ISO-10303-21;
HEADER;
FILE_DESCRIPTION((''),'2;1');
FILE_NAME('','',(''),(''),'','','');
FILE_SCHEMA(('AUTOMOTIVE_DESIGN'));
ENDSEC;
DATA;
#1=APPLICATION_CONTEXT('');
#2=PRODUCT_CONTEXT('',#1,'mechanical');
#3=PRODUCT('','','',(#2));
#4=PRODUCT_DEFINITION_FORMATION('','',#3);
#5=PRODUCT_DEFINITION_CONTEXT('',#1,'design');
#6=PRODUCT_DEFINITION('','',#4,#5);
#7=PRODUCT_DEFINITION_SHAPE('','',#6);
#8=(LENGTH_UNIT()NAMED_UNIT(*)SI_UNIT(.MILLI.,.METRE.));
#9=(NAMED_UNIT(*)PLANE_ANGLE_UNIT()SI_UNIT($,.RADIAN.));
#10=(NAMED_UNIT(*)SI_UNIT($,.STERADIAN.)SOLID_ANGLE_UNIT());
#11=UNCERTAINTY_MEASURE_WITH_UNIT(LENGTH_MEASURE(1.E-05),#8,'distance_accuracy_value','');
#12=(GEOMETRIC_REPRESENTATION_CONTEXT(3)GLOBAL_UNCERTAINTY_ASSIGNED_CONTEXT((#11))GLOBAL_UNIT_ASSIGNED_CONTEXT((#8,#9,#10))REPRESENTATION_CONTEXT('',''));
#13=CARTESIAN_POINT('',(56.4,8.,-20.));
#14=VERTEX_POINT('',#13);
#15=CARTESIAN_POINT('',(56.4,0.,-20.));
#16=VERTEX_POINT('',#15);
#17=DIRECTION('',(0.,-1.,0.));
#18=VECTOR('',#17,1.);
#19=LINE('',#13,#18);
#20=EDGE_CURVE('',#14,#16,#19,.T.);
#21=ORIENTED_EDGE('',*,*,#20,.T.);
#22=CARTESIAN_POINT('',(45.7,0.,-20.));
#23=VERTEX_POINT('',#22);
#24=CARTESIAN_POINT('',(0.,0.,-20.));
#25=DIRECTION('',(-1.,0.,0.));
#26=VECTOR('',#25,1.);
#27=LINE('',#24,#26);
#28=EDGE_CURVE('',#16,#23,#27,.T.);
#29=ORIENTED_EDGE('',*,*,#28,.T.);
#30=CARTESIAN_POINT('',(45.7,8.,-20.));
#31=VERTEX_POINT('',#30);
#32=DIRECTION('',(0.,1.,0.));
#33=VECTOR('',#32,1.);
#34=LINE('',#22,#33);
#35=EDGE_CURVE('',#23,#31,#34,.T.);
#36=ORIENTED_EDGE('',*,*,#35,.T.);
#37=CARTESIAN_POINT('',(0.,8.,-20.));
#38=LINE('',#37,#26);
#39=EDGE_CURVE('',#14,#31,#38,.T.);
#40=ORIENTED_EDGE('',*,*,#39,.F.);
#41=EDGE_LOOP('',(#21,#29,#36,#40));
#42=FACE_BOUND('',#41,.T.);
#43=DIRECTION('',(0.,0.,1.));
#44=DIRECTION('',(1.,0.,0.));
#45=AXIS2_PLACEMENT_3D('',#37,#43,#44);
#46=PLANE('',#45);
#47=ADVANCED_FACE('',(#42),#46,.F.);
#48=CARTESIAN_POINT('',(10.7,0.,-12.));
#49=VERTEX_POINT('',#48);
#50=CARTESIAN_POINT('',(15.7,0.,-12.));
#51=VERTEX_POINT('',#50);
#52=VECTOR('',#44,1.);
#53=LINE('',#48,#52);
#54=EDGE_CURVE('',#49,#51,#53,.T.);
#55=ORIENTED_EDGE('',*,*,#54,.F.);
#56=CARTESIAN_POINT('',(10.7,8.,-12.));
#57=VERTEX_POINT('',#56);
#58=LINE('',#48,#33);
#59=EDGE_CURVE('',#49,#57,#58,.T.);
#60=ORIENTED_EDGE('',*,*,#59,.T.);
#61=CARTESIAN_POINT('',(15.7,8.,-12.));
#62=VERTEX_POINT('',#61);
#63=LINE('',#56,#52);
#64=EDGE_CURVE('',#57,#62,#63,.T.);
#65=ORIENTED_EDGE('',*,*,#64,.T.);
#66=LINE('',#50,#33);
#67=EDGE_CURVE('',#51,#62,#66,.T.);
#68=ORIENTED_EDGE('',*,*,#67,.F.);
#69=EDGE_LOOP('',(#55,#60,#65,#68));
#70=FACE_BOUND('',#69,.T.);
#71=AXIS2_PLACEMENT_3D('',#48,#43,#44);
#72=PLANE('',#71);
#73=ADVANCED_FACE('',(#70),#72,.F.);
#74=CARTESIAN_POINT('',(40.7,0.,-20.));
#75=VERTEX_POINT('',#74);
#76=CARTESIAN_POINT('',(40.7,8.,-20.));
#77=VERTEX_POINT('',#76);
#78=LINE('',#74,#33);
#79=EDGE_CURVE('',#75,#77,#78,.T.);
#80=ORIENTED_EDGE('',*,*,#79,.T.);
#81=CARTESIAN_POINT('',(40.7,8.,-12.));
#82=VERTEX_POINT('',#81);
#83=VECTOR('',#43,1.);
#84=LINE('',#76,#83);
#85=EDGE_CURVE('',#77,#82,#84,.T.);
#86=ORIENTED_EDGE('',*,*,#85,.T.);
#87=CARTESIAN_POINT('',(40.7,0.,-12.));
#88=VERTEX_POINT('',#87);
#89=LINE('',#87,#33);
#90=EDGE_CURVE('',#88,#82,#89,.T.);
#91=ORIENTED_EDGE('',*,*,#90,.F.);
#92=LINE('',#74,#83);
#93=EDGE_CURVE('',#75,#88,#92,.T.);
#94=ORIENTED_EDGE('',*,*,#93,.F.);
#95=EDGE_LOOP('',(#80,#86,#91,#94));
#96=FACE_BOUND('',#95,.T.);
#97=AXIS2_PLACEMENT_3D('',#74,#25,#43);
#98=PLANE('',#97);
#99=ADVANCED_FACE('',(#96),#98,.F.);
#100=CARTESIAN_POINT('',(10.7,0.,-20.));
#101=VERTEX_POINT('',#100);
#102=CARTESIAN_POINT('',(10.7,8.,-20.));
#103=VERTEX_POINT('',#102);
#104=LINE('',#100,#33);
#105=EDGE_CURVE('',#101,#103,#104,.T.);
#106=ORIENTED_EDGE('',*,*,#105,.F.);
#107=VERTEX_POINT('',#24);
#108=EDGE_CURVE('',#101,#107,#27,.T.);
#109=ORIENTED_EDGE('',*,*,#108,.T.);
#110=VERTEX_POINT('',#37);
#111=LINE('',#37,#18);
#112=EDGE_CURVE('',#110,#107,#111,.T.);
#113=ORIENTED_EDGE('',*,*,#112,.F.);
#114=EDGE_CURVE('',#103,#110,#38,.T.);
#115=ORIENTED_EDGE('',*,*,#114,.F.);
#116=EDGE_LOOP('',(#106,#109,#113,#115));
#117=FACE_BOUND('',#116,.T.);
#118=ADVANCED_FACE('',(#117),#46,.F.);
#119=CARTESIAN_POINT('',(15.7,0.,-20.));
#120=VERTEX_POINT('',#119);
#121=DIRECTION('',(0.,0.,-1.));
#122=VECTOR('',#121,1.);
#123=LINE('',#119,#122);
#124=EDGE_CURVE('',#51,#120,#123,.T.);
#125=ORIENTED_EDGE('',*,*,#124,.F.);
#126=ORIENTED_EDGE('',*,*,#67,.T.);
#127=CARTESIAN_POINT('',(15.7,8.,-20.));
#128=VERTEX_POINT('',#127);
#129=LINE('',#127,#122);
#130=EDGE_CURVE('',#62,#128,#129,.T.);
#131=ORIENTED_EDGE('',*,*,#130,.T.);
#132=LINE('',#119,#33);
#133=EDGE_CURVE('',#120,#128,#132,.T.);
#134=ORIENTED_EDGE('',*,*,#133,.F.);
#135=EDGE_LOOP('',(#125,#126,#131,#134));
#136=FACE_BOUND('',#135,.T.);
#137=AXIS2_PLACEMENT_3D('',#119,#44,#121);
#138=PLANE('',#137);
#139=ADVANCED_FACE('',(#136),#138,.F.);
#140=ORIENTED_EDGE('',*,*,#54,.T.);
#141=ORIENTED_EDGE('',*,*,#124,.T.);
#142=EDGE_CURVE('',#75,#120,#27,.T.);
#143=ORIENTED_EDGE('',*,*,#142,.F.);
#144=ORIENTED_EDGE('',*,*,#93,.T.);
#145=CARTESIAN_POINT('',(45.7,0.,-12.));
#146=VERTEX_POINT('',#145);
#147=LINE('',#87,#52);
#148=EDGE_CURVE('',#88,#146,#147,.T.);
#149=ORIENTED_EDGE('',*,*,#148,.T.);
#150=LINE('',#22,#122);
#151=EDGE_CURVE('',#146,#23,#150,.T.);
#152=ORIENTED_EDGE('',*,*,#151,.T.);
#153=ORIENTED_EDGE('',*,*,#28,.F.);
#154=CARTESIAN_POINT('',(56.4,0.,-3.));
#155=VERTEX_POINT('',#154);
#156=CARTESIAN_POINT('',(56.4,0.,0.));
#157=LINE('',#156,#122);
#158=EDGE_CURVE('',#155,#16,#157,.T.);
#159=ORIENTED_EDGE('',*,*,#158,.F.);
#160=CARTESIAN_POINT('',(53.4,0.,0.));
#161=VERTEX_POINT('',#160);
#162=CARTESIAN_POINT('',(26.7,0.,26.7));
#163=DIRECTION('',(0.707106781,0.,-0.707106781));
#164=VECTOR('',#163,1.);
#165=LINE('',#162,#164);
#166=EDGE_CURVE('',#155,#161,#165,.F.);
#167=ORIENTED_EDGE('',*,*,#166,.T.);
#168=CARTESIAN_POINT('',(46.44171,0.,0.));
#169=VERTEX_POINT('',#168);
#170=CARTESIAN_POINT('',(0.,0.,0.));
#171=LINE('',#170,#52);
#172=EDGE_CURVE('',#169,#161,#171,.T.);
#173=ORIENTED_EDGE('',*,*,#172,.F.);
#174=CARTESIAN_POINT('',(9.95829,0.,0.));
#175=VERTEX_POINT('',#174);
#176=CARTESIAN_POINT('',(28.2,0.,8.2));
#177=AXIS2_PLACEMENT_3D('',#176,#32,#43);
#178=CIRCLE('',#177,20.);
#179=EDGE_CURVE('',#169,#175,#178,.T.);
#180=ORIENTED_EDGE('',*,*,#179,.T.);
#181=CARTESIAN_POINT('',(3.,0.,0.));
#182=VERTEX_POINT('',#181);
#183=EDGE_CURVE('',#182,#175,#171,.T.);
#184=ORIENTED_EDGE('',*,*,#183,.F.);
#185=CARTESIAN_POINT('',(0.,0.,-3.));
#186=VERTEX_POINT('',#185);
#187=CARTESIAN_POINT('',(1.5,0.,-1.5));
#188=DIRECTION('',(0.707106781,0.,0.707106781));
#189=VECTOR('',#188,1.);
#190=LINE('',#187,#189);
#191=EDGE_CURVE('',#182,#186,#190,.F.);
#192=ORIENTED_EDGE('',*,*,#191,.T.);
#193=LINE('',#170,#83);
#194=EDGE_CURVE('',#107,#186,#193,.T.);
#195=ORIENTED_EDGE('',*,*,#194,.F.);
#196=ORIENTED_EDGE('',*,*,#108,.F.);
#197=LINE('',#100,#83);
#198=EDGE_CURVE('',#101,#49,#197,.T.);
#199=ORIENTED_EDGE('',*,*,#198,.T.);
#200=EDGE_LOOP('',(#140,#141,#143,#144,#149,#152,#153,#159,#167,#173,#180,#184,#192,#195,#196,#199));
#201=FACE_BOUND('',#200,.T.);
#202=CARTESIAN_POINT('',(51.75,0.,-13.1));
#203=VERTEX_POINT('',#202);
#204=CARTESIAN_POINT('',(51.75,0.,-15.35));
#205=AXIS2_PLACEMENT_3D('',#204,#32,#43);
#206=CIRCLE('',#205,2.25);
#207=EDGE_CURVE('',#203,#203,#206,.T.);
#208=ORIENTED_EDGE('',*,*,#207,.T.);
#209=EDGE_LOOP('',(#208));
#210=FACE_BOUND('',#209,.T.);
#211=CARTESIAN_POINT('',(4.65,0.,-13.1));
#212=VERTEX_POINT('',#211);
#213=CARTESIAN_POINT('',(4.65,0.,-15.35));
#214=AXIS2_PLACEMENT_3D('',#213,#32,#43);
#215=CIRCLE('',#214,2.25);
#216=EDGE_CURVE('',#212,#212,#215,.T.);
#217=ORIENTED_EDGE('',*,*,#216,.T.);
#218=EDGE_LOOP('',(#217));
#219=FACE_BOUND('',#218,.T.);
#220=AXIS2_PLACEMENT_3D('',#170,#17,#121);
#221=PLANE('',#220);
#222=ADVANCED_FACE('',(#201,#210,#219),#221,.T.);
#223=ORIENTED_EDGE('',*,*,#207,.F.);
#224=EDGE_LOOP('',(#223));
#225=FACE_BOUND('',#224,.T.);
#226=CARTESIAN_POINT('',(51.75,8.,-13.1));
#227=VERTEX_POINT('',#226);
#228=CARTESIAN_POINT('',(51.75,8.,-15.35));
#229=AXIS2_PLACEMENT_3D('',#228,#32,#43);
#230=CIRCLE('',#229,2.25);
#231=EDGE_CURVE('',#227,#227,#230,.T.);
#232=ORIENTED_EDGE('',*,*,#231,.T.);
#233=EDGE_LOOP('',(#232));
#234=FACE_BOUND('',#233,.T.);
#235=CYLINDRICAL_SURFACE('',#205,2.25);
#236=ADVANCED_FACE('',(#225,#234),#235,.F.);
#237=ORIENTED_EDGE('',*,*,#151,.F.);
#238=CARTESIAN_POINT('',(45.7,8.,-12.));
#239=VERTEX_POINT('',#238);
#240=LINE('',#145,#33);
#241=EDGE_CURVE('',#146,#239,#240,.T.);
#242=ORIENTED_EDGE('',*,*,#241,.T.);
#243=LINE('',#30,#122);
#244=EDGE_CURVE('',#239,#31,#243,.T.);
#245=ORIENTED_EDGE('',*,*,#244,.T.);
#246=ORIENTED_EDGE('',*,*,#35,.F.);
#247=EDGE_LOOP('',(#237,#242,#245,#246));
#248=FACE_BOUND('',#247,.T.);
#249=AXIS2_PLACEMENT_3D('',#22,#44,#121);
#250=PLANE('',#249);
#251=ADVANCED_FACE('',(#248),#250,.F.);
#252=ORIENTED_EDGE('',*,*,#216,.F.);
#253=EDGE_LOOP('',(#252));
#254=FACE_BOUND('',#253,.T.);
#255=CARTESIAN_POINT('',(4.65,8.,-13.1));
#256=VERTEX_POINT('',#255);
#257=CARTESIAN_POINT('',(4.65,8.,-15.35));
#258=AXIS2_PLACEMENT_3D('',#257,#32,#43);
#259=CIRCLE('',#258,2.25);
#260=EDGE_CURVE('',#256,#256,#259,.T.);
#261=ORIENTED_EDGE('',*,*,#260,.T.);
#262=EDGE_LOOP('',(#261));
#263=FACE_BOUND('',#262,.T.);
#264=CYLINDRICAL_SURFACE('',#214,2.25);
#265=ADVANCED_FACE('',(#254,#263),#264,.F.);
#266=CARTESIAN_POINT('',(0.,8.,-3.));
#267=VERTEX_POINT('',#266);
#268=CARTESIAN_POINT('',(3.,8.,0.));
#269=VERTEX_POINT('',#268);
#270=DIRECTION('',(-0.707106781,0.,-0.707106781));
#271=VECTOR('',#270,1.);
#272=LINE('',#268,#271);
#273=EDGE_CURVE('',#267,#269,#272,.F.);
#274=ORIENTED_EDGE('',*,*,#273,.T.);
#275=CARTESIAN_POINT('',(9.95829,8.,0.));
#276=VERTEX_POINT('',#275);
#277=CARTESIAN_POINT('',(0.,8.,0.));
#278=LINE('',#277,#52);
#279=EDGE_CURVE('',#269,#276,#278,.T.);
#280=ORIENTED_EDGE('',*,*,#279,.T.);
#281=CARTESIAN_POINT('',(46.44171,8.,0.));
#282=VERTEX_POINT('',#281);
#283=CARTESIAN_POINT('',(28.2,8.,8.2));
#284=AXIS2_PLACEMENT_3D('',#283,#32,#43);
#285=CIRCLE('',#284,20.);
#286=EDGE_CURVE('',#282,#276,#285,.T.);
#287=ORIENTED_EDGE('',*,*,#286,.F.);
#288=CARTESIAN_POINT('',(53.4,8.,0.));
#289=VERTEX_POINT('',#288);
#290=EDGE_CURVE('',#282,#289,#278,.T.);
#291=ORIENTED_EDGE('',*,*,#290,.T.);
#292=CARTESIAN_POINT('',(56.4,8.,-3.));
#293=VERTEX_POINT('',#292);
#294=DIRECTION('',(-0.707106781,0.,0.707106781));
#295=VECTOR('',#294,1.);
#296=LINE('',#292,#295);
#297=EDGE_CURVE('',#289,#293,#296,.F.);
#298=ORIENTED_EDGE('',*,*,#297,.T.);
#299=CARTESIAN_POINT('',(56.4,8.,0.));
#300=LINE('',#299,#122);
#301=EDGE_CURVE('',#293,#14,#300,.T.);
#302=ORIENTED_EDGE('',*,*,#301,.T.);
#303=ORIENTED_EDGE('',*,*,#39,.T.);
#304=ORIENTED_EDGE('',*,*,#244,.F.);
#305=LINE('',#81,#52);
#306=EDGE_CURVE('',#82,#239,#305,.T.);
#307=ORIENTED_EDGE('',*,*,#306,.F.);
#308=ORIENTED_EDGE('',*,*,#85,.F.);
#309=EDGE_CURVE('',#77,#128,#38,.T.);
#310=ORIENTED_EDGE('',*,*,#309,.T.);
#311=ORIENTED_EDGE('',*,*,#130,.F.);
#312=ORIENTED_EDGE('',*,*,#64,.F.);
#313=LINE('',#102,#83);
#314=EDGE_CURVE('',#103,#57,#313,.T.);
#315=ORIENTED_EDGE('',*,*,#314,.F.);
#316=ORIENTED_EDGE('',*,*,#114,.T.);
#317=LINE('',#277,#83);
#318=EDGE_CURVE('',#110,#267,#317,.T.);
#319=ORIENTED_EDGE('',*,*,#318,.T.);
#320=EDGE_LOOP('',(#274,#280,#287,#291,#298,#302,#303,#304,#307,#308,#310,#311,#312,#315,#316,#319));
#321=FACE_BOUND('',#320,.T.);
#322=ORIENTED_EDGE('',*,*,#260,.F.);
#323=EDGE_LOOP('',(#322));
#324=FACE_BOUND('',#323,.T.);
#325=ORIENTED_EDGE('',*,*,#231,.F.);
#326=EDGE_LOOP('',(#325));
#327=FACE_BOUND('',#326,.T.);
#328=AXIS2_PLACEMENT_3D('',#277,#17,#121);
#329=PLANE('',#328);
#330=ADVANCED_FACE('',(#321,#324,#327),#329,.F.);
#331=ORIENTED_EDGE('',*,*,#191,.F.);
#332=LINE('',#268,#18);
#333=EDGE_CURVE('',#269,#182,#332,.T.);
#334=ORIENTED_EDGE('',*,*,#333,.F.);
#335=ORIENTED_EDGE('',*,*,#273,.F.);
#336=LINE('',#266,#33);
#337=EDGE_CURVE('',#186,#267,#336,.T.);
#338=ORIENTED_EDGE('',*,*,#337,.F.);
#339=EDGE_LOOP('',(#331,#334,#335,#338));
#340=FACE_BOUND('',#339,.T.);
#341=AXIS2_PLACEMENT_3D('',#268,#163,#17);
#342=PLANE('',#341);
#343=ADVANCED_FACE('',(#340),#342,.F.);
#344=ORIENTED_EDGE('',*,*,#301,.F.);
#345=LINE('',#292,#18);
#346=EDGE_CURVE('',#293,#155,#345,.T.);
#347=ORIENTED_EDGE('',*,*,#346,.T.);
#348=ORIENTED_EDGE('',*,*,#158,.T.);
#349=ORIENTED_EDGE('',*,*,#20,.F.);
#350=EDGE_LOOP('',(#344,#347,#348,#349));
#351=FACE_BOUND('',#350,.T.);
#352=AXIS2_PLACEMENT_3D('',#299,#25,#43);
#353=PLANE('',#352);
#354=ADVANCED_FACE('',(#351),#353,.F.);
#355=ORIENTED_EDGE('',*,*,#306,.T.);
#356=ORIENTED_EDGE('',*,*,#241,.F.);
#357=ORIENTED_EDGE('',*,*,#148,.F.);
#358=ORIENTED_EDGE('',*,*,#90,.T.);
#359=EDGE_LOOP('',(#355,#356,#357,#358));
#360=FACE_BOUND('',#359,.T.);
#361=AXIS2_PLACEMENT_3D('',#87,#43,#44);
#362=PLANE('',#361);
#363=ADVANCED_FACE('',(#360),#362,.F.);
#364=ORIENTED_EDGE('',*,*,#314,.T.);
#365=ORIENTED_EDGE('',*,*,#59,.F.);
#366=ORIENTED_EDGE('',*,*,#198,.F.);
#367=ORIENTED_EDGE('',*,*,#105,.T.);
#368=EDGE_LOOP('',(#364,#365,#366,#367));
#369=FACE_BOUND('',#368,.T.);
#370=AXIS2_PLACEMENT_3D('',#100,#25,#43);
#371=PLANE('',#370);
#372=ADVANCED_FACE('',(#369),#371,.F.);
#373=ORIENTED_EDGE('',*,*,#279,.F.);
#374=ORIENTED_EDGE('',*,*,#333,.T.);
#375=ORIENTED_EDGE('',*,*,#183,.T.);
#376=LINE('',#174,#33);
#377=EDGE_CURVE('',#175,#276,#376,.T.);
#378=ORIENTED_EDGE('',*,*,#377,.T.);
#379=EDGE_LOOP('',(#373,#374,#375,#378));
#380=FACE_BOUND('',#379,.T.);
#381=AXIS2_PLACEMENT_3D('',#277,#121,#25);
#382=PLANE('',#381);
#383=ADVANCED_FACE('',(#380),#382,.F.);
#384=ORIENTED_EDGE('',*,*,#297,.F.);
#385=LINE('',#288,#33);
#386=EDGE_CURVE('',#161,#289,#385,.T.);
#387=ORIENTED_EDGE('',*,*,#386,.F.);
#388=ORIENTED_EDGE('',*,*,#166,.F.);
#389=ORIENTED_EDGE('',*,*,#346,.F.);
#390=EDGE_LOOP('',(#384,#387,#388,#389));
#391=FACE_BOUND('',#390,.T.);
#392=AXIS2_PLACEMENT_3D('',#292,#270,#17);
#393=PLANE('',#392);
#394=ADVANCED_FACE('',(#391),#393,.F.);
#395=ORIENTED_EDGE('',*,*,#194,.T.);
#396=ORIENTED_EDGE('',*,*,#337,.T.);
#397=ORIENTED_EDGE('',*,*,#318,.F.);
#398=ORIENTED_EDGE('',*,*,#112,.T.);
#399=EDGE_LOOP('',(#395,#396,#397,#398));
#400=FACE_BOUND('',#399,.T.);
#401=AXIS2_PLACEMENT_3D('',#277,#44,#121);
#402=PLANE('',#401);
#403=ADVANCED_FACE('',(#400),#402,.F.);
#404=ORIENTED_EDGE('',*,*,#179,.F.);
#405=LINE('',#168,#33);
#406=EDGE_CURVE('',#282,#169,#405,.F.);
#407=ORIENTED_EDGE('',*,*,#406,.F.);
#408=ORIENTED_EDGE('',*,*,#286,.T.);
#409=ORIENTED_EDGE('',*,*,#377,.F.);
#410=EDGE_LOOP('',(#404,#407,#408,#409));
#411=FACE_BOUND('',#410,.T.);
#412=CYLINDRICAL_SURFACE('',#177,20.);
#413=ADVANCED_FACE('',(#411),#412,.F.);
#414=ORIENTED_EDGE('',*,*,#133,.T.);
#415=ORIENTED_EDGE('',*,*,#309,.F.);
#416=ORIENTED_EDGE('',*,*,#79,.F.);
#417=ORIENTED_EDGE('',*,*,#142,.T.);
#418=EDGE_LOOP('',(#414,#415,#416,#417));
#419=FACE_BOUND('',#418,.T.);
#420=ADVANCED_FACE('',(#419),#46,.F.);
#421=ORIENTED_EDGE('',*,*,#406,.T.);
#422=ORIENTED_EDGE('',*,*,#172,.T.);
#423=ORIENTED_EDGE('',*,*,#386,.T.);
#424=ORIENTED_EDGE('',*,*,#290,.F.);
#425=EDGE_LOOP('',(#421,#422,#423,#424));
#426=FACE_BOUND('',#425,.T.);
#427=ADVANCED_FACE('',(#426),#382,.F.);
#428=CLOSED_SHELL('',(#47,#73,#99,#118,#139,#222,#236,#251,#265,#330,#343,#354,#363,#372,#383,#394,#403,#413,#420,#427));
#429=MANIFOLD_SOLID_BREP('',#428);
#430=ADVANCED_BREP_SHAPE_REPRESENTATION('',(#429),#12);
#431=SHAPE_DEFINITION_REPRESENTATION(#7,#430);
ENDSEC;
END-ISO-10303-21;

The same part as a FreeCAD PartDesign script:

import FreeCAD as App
import Part
import Sketcher
from FreeCAD import Vector


def edges_at(feature, points):
    """Names of the edges that pass closest to the given points."""
    edges = feature.Shape.Edges
    near = lambda p: min(range(len(edges)), key=lambda i: edges[i].distToShape(Part.Vertex(*p))[0])
    return sorted({f"Edge{near(p) + 1}" for p in points})

doc = App.newDocument("Part")
body = doc.addObject("PartDesign::Body", "Body")

sketch1 = body.newObject("Sketcher::SketchObject", "Sketch")
sketch1.AttachmentSupport = (doc.getObject("XZ_Plane"), [""])
sketch1.MapMode = "FlatFace"
sketch1.addGeometry(Part.LineSegment(Vector(0, -20, 0), Vector(0, 0, 0)), False)
sketch1.addGeometry(Part.LineSegment(Vector(0, 0, 0), Vector(56, 0, 0)), False)
sketch1.addGeometry(Part.LineSegment(Vector(56, 0, 0), Vector(56, -20, 0)), False)
sketch1.addGeometry(Part.LineSegment(Vector(56, -20, 0), Vector(0, -20, 0)), False)
sketch1.addConstraint(Sketcher.Constraint("Coincident", 0, 2, 1, 1))
sketch1.addConstraint(Sketcher.Constraint("Coincident", 1, 2, 2, 1))
sketch1.addConstraint(Sketcher.Constraint("Coincident", 2, 2, 3, 1))
sketch1.addConstraint(Sketcher.Constraint("Coincident", 3, 2, 0, 1))
sketch1.addConstraint(Sketcher.Constraint("Vertical", 0))
sketch1.addConstraint(Sketcher.Constraint("Horizontal", 1))
sketch1.addConstraint(Sketcher.Constraint("Vertical", 2))
sketch1.addConstraint(Sketcher.Constraint("Horizontal", 3))
sketch1.addConstraint(Sketcher.Constraint("Coincident", 0, 2, -1, 1))
sketch1.addConstraint(Sketcher.Constraint("DistanceY", 0, 1, 0, 2, 20.0))
sketch1.addConstraint(Sketcher.Constraint("DistanceX", 1, 1, 1, 2, 56.4))
pad1 = body.newObject("PartDesign::Pad", "Pad")
pad1.Profile = sketch1
pad1.Length = 8
pad1.Reversed = True

sketch2 = body.newObject("Sketcher::SketchObject", "Sketch001")
sketch2.AttachmentSupport = (doc.getObject("XZ_Plane"), [""])
sketch2.MapMode = "FlatFace"
sketch2.AttachmentOffset = App.Placement(Vector(0, 0, -8), App.Rotation())
sketch2.addGeometry(Part.Circle(Vector(51.8, -15.3, 0), Vector(0, 0, 1), 2.2), False)
sketch2.addGeometry(Part.Circle(Vector(4.7, -15.3, 0), Vector(0, 0, 1), 2.2), False)
sketch2.addConstraint(Sketcher.Constraint("Equal", 0, 1))
sketch2.addConstraint(Sketcher.Constraint("Horizontal", 0, 3, 1, 3))
sketch2.addConstraint(Sketcher.Constraint("Diameter", 0, 4.5))
sketch2.addConstraint(Sketcher.Constraint("DistanceX", 1, 3, 0, 3, 47.1))
sketch2.addConstraint(Sketcher.Constraint("DistanceX", -1, 1, 0, 3, 51.75))
sketch2.addConstraint(Sketcher.Constraint("DistanceY", 0, 3, -1, 1, 15.35))
pocket1 = body.newObject("PartDesign::Pocket", "Pocket")
pocket1.Profile = sketch2
pocket1.Length = 8
pocket1.Reversed = True
doc.recompute()

chamfer = body.newObject("PartDesign::Chamfer", "Chamfer")
chamfer.Base = (pocket1, edges_at(pocket1, [(56.4, 4, 0), (0, 4, 0)]))
chamfer.Size = 3

sketch3 = body.newObject("Sketcher::SketchObject", "Sketch002")
sketch3.AttachmentSupport = (doc.getObject("XZ_Plane"), [""])
sketch3.MapMode = "FlatFace"
sketch3.AttachmentOffset = App.Placement(Vector(0, 0, -8), App.Rotation())
sketch3.addGeometry(Part.Circle(Vector(28, 8, 0), Vector(0, 0, 1), 20), False)
sketch3.addConstraint(Sketcher.Constraint("Diameter", 0, 40.0))
sketch3.addConstraint(Sketcher.Constraint("DistanceX", -1, 1, 0, 3, 28.2))
sketch3.addConstraint(Sketcher.Constraint("DistanceY", -1, 1, 0, 3, 8.2))
pocket2 = body.newObject("PartDesign::Pocket", "Pocket001")
pocket2.Profile = sketch3
pocket2.Length = 8
pocket2.Reversed = True

sketch4 = body.newObject("Sketcher::SketchObject", "Sketch003")
sketch4.AttachmentSupport = (doc.getObject("XZ_Plane"), [""])
sketch4.MapMode = "FlatFace"
sketch4.AttachmentOffset = App.Placement(Vector(0, 0, -8), App.Rotation())
sketch4.addGeometry(Part.LineSegment(Vector(11, -20, 0), Vector(11, -12, 0)), False)
sketch4.addGeometry(Part.LineSegment(Vector(11, -12, 0), Vector(16, -12, 0)), False)
sketch4.addGeometry(Part.LineSegment(Vector(16, -12, 0), Vector(16, -20, 0)), False)
sketch4.addGeometry(Part.LineSegment(Vector(16, -20, 0), Vector(11, -20, 0)), False)
sketch4.addGeometry(Part.LineSegment(Vector(41, -20, 0), Vector(41, -12, 0)), False)
sketch4.addGeometry(Part.LineSegment(Vector(41, -12, 0), Vector(46, -12, 0)), False)
sketch4.addGeometry(Part.LineSegment(Vector(46, -12, 0), Vector(46, -20, 0)), False)
sketch4.addGeometry(Part.LineSegment(Vector(46, -20, 0), Vector(41, -20, 0)), False)
sketch4.addConstraint(Sketcher.Constraint("Coincident", 0, 2, 1, 1))
sketch4.addConstraint(Sketcher.Constraint("Coincident", 1, 2, 2, 1))
sketch4.addConstraint(Sketcher.Constraint("Coincident", 2, 2, 3, 1))
sketch4.addConstraint(Sketcher.Constraint("Coincident", 3, 2, 0, 1))
sketch4.addConstraint(Sketcher.Constraint("Coincident", 4, 2, 5, 1))
sketch4.addConstraint(Sketcher.Constraint("Coincident", 5, 2, 6, 1))
sketch4.addConstraint(Sketcher.Constraint("Coincident", 6, 2, 7, 1))
sketch4.addConstraint(Sketcher.Constraint("Coincident", 7, 2, 4, 1))
sketch4.addConstraint(Sketcher.Constraint("Vertical", 0))
sketch4.addConstraint(Sketcher.Constraint("Horizontal", 1))
sketch4.addConstraint(Sketcher.Constraint("Vertical", 2))
sketch4.addConstraint(Sketcher.Constraint("Horizontal", 3))
sketch4.addConstraint(Sketcher.Constraint("Vertical", 4))
sketch4.addConstraint(Sketcher.Constraint("Horizontal", 5))
sketch4.addConstraint(Sketcher.Constraint("Vertical", 6))
sketch4.addConstraint(Sketcher.Constraint("Horizontal", 7))
sketch4.addConstraint(Sketcher.Constraint("Horizontal", 1, 2, 4, 2))
sketch4.addConstraint(Sketcher.Constraint("Horizontal", 3, 2, 6, 2))
sketch4.addConstraint(Sketcher.Constraint("Equal", 3, 5))
sketch4.addConstraint(Sketcher.Constraint("DistanceX", 1, 1, 1, 2, 5.0))
sketch4.addConstraint(Sketcher.Constraint("DistanceY", 0, 1, 0, 2, 8.0))
sketch4.addConstraint(Sketcher.Constraint("DistanceY", 0, 2, -1, 1, 12.0))
sketch4.addConstraint(Sketcher.Constraint("DistanceX", 1, 2, 4, 2, 25.0))
sketch4.addConstraint(Sketcher.Constraint("DistanceX", -1, 1, 0, 2, 10.7))
pocket3 = body.newObject("PartDesign::Pocket", "Pocket002")
pocket3.Profile = sketch4
pocket3.Length = 8
pocket3.Reversed = True

doc.recompute()
